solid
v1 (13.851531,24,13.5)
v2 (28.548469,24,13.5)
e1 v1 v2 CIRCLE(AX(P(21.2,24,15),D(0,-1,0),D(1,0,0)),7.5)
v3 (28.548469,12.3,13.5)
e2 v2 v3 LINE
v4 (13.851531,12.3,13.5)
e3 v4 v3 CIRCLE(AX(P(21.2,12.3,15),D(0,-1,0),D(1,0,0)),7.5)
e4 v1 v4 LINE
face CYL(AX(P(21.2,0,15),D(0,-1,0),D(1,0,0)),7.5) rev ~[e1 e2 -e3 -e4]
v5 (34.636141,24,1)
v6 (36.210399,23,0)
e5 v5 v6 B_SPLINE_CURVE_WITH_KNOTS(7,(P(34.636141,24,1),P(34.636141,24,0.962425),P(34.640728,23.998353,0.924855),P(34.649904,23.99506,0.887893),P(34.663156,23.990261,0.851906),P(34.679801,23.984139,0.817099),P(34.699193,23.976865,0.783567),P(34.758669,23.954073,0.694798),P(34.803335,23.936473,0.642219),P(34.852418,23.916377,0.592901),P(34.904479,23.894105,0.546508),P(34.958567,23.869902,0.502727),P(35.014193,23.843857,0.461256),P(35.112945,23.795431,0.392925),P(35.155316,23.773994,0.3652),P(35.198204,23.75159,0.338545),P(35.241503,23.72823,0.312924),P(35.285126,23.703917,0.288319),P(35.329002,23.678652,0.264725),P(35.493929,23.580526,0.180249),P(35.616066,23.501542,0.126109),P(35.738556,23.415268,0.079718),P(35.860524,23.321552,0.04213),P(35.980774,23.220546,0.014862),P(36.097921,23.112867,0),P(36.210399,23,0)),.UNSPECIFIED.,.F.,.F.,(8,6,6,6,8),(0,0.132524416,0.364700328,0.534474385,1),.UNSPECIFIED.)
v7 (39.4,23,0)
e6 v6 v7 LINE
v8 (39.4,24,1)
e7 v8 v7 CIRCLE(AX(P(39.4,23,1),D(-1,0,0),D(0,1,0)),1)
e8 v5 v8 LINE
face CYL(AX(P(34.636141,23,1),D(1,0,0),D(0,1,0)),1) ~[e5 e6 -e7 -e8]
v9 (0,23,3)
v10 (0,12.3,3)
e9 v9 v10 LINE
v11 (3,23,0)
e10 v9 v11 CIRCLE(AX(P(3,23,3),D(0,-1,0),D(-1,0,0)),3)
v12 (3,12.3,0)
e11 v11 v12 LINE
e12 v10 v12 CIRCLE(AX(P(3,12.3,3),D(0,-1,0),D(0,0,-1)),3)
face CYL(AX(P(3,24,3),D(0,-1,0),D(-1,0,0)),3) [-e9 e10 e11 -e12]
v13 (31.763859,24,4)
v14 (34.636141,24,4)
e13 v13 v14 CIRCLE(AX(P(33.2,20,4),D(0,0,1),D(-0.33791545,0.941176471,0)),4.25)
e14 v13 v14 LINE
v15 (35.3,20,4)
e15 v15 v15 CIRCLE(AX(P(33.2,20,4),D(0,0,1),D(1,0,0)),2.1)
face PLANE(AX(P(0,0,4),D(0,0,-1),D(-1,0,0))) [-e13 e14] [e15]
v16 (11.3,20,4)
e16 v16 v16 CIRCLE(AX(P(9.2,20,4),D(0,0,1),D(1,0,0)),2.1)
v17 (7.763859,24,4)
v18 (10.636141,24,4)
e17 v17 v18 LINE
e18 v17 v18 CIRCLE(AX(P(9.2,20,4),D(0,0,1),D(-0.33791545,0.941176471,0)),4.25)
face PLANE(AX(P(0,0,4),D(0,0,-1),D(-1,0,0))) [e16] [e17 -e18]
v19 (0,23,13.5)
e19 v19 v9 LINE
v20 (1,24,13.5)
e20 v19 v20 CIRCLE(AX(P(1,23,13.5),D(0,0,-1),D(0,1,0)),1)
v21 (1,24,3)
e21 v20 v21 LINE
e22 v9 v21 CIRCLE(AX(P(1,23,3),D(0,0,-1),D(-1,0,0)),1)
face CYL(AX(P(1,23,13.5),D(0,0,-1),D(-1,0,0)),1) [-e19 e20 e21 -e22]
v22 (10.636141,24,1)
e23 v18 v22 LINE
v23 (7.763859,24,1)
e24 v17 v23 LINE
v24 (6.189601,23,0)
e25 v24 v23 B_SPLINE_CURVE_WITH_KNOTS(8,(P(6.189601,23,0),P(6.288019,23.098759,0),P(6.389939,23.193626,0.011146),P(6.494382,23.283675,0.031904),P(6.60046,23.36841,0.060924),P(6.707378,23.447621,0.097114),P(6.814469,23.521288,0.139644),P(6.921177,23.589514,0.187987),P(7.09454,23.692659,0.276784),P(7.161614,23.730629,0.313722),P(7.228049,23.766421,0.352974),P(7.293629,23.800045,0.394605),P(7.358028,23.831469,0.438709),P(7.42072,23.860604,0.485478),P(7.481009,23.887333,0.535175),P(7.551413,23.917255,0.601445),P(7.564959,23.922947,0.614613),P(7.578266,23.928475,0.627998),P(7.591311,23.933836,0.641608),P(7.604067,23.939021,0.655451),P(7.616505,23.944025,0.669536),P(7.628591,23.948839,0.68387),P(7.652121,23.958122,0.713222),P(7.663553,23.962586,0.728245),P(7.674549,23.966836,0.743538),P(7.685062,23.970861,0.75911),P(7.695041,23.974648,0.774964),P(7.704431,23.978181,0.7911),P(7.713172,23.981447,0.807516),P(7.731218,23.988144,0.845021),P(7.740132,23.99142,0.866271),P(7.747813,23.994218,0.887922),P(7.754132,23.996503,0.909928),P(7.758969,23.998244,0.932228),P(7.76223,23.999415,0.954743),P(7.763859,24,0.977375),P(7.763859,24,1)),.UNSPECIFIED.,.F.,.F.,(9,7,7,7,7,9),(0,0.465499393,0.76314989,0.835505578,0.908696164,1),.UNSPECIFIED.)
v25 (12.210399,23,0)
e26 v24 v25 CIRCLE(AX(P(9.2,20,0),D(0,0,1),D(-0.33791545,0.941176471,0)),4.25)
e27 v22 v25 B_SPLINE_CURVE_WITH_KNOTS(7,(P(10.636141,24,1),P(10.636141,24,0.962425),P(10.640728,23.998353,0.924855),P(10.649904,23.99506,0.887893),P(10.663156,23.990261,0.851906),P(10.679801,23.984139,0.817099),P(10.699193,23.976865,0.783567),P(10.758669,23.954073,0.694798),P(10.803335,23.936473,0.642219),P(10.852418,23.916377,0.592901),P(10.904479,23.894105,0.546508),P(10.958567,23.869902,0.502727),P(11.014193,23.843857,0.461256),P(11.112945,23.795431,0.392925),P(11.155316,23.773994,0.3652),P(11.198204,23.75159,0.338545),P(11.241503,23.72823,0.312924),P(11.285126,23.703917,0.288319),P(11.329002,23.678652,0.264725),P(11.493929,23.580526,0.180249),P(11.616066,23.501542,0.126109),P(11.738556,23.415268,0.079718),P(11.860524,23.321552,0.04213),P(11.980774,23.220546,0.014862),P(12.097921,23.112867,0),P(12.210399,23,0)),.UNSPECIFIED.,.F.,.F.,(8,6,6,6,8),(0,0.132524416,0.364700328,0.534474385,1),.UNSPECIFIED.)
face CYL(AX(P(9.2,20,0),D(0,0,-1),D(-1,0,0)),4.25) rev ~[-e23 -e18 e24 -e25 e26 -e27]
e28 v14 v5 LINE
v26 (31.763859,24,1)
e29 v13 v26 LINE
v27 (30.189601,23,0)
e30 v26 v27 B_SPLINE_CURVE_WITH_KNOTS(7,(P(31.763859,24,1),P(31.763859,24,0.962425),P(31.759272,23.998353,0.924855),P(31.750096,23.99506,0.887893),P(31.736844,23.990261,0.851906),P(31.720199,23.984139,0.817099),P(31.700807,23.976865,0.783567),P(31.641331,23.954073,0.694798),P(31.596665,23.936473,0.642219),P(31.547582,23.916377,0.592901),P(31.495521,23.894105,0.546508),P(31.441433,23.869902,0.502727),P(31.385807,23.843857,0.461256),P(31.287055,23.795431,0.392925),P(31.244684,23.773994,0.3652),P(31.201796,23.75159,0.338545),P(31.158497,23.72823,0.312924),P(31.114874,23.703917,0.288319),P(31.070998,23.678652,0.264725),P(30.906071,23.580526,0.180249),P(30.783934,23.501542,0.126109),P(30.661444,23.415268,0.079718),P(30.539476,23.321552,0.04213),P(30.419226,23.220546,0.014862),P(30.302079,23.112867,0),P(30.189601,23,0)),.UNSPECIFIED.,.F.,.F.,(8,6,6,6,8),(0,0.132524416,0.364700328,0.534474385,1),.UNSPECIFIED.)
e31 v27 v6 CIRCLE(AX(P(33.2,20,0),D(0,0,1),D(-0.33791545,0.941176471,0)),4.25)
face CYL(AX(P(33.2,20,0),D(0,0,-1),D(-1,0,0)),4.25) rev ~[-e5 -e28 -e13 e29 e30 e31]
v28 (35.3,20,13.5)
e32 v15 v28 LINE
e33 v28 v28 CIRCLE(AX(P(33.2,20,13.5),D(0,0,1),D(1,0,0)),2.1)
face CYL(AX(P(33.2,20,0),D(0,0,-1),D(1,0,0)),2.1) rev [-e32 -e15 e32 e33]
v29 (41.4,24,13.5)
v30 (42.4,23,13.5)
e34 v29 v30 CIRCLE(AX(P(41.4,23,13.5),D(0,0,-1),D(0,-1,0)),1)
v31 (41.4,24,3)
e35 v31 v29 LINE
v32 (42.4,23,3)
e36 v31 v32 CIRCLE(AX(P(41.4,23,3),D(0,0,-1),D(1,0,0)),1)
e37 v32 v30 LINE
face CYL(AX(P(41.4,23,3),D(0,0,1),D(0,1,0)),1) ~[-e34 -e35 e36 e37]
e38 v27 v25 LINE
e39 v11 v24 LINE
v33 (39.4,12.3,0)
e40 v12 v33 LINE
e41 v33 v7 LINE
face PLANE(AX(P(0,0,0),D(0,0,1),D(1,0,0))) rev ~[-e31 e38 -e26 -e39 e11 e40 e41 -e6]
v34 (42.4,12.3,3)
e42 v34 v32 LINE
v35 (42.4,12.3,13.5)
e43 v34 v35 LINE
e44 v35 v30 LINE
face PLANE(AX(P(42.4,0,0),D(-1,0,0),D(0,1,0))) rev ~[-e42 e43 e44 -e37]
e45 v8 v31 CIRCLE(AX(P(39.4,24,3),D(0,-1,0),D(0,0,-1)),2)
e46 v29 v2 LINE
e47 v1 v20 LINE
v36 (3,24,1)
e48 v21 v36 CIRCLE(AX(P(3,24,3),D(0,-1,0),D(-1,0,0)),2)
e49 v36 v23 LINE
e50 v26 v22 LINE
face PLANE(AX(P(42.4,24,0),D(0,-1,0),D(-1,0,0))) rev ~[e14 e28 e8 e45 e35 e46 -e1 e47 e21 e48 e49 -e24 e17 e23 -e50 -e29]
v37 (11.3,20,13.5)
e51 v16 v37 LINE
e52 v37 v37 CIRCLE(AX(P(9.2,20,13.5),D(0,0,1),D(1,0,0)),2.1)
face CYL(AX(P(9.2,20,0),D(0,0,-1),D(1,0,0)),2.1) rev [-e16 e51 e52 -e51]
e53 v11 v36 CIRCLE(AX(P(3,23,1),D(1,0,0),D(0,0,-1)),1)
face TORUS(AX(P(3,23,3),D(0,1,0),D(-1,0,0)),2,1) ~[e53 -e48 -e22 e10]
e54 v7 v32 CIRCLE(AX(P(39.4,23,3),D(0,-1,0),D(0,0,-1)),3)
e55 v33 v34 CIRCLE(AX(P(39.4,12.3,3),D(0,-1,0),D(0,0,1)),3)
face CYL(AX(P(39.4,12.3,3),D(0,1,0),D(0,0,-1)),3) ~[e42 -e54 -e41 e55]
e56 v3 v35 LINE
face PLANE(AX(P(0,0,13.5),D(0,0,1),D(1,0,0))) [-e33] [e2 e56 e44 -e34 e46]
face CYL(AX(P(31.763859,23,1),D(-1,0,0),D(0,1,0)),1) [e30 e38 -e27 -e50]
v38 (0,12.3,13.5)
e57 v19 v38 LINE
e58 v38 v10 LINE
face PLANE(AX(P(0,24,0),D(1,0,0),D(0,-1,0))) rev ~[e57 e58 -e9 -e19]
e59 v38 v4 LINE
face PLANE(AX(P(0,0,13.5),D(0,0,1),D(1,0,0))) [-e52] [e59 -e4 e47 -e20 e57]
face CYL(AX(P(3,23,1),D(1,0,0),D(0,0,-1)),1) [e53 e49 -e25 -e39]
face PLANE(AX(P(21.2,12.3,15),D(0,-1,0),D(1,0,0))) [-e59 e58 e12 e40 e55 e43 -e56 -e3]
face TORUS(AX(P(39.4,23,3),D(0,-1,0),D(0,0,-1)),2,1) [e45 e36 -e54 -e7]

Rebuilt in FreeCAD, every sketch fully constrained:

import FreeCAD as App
import Part
import Sketcher

V = App.Vector
Q = App.Units.Quantity


def edges_at(feature, points):
    """Names of the edges that pass closest to the given points."""
    edges = feature.Shape.Edges
    near = lambda p: min(range(len(edges)), key=lambda i: edges[i].distToShape(Part.Vertex(*p))[0])
    return sorted({f"Edge{near(p) + 1}" for p in points})

doc = App.newDocument("Part")
params = doc.addObject("Spreadsheet::Sheet", "Params")
for row, (alias, value) in enumerate([
    ("sketch1_diameter", "4.2 mm"),
    ("sketch1_height", "24 mm"),
    ("sketch1_width", "42.4 mm"),
    ("pad1_length", "13.5 mm"),
    ("sketch2_diameter", "15 mm"),
    ("fillet_radius", "3 mm"),
    ("sketch3_diameter", "8.5 mm"),
    ("sketch3_diameter2", "4.2 mm"),
    ("pocket2_length", "4 mm"),
    ("pocket3_length", "12.3 mm"),
    ("fillet2_radius", "3 mm"),
    ("fillet3_radius", "1 mm"),
], start=1):
    params.set(f"A{row}", alias)
    params.set(f"B{row}", "=" + value)
    params.setAlias(f"B{row}", alias)

body = doc.addObject("PartDesign::Body", "Body")

sketch1 = body.newObject("Sketcher::SketchObject", "Sketch")
sketch1.AttachmentSupport = (doc.getObject("XY_Plane"), [""])
sketch1.MapMode = "FlatFace"
sketch1.addGeometry([
    Part.LineSegment(V(0, 24, 0), V(0, 0, 0)),
    Part.LineSegment(V(0, 0, 0), V(42.4, 0, 0)),
    Part.LineSegment(V(42.4, 0, 0), V(42.4, 24, 0)),
    Part.LineSegment(V(42.4, 24, 0), V(0, 24, 0)),
    Part.Circle(V(9.2, 4, 0), V(0, 0, 1), 2.1),
    Part.Circle(V(33.2, 4, 0), V(0, 0, 1), 2.1),
    Part.Circle(V(9.2, 20, 0), V(0, 0, 1), 2.1),
    Part.Circle(V(33.2, 20, 0), V(0, 0, 1), 2.1),
], False)
sketch1.addConstraint([
    Sketcher.Constraint("Coincident", 0, 2, 1, 1),
    Sketcher.Constraint("Coincident", 1, 2, 2, 1),
    Sketcher.Constraint("Coincident", 2, 2, 3, 1),
    Sketcher.Constraint("Coincident", 3, 2, 0, 1),
    Sketcher.Constraint("Vertical", 0),
    Sketcher.Constraint("Horizontal", 1),
    Sketcher.Constraint("Vertical", 2),
    Sketcher.Constraint("Horizontal", 3),
    Sketcher.Constraint("Coincident", 0, 2, -1, 1),
    Sketcher.Constraint("Equal", 4, 5),
    Sketcher.Constraint("Equal", 5, 6),
    Sketcher.Constraint("Equal", 6, 7),
    Sketcher.Constraint("Horizontal", 4, 3, 5, 3),
    Sketcher.Constraint("Horizontal", 6, 3, 7, 3),
    Sketcher.Constraint("Vertical", 4, 3, 6, 3),
    Sketcher.Constraint("Vertical", 5, 3, 7, 3),
    Sketcher.Constraint("Diameter", 4, Q("4.2 mm")),
    Sketcher.Constraint("DistanceY", 0, 2, 0, 1, Q("24 mm")),
    Sketcher.Constraint("DistanceX", 1, 1, 1, 2, Q("42.4 mm")),
    Sketcher.Constraint("DistanceY", -1, 1, 4, 3, Q("4 mm")),
    Sketcher.Constraint("DistanceX", 4, 3, 5, 3, Q("24 mm")),
    Sketcher.Constraint("DistanceY", 7, 3, 2, 2, Q("4 mm")),
    Sketcher.Constraint("DistanceX", -1, 1, 4, 3, Q("9.2 mm")),
])
sketch1.setExpression("Constraints[16]", "Params.sketch1_diameter")
sketch1.setExpression("Constraints[17]", "Params.sketch1_height")
sketch1.setExpression("Constraints[18]", "Params.sketch1_width")
pad1 = body.newObject("PartDesign::Pad", "Pad")
pad1.Profile = sketch1
pad1.setExpression("Length", "Params.pad1_length")

sketch2 = body.newObject("Sketcher::SketchObject", "Sketch001")
sketch2.AttachmentSupport = (doc.getObject("XZ_Plane"), [""])
sketch2.MapMode = "FlatFace"
sketch2.addGeometry(Part.Circle(V(21, 15, 0), V(0, 0, 1), 8), False)
sketch2.addConstraint([
    Sketcher.Constraint("Diameter", 0, Q("15 mm")),
    Sketcher.Constraint("DistanceY", -1, 1, 0, 3, Q("15 mm")),
    Sketcher.Constraint("DistanceX", -1, 1, 0, 3, Q("21.2 mm")),
])
sketch2.setExpression("Constraints[0]", "Params.sketch2_diameter")
pocket1 = body.newObject("PartDesign::Pocket", "Pocket")
pocket1.Profile = sketch2
pocket1.Type = "ThroughAll"
doc.recompute()

fillet = body.newObject("PartDesign::Fillet", "Fillet")
fillet.Base = (pocket1, edges_at(pocket1, [(42.4, 0, 6.75), (0, 0, 6.75), (21.2, 0, 0)]))
fillet.setExpression("Radius", "Params.fillet_radius")

sketch3 = body.newObject("Sketcher::SketchObject", "Sketch002")
sketch3.AttachmentSupport = (doc.getObject("XY_Plane"), [""])
sketch3.MapMode = "FlatFace"
sketch3.addGeometry([
    Part.Circle(V(33.2, 20, 0), V(0, 0, 1), 4.2),
    Part.Circle(V(33.2, 20, 0), V(0, 0, 1), 2.1),
    Part.Circle(V(9.2, 20, 0), V(0, 0, 1), 4.2),
    Part.Circle(V(9.2, 20, 0), V(0, 0, 1), 2.1),
    Part.Circle(V(9.2, 4, 0), V(0, 0, 1), 4.2),
    Part.Circle(V(33.2, 4, 0), V(0, 0, 1), 4.2),
], False)
sketch3.addConstraint([
    Sketcher.Constraint("Coincident", 1, 3, 0, 3),
    Sketcher.Constraint("Coincident", 3, 3, 2, 3),
    Sketcher.Constraint("Equal", 0, 2),
    Sketcher.Constraint("Equal", 1, 3),
    Sketcher.Constraint("Equal", 2, 4),
    Sketcher.Constraint("Equal", 4, 5),
    Sketcher.Constraint("Horizontal", 1, 3, 2, 3),
    Sketcher.Constraint("Horizontal", 4, 3, 5, 3),
    Sketcher.Constraint("Vertical", 3, 3, 4, 3),
    Sketcher.Constraint("Vertical", 1, 3, 5, 3),
    Sketcher.Constraint("Diameter", 0, Q("8.5 mm")),
    Sketcher.Constraint("Diameter", 1, Q("4.2 mm")),
    Sketcher.Constraint("DistanceY", -1, 1, 0, 3, Q("20 mm")),
    Sketcher.Constraint("DistanceY", -1, 1, 4, 3, Q("4 mm")),
    Sketcher.Constraint("DistanceX", 2, 3, 0, 3, Q("24 mm")),
    Sketcher.Constraint("DistanceX", -1, 1, 0, 3, Q("33.2 mm")),
])
sketch3.setExpression("Constraints[10]", "Params.sketch3_diameter")
sketch3.setExpression("Constraints[11]", "Params.sketch3_diameter2")
pocket2 = body.newObject("PartDesign::Pocket", "Pocket001")
pocket2.Profile = sketch3
pocket2.setExpression("Length", "Params.pocket2_length")
pocket2.Reversed = True

sketch4 = body.newObject("Sketcher::SketchObject", "Sketch003")
sketch4.AttachmentSupport = (doc.getObject("XZ_Plane"), [""])
sketch4.MapMode = "FlatFace"
sketch4.addGeometry([
    Part.LineSegment(V(45, 17, 0), V(-5, 17, 0)),
    Part.LineSegment(V(-5, 17, 0), V(-5, -4, 0)),
    Part.LineSegment(V(-5, -4, 0), V(45, -4, 0)),
    Part.LineSegment(V(45, -4, 0), V(45, 17, 0)),
], False)
sketch4.addConstraint([
    Sketcher.Constraint("Coincident", 0, 2, 1, 1),
    Sketcher.Constraint("Coincident", 1, 2, 2, 1),
    Sketcher.Constraint("Coincident", 2, 2, 3, 1),
    Sketcher.Constraint("Coincident", 3, 2, 0, 1),
    Sketcher.Constraint("Horizontal", 0),
    Sketcher.Constraint("Vertical", 1),
    Sketcher.Constraint("Horizontal", 2),
    Sketcher.Constraint("Vertical", 3),
    Sketcher.Constraint("DistanceX", 0, 2, 0, 1, Q("50.555 mm")),
    Sketcher.Constraint("DistanceY", 1, 2, 1, 1, Q("20.7276 mm")),
    Sketcher.Constraint("DistanceX", 0, 2, -1, 1, Q("5.108 mm")),
    Sketcher.Constraint("DistanceY", -1, 1, 0, 2, Q("16.997 mm")),
])
pocket3 = body.newObject("PartDesign::Pocket", "Pocket002")
pocket3.Profile = sketch4
pocket3.setExpression("Length", "Params.pocket3_length")
doc.recompute()

fillet2 = body.newObject("PartDesign::Fillet", "Fillet001")
fillet2.Base = (pocket3, edges_at(pocket3, [(42.4, 18.15, 0), (0, 18.15, 0)]))
fillet2.setExpression("Radius", "Params.fillet2_radius")
doc.recompute()

fillet3 = body.newObject("PartDesign::Fillet", "Fillet002")
fillet3.Base = (fillet2, edges_at(fillet2, [
    (41.521, 24, 0.879),
    (37.018, 24, 0),
    (42.4, 24, 8.25),
    (21.2, 24, 0),
    (0.879, 24, 0.879),
    (0, 24, 8.25),
    (5.382, 24, 0),
]))
fillet3.setExpression("Radius", "Params.fillet3_radius")

doc.recompute()
